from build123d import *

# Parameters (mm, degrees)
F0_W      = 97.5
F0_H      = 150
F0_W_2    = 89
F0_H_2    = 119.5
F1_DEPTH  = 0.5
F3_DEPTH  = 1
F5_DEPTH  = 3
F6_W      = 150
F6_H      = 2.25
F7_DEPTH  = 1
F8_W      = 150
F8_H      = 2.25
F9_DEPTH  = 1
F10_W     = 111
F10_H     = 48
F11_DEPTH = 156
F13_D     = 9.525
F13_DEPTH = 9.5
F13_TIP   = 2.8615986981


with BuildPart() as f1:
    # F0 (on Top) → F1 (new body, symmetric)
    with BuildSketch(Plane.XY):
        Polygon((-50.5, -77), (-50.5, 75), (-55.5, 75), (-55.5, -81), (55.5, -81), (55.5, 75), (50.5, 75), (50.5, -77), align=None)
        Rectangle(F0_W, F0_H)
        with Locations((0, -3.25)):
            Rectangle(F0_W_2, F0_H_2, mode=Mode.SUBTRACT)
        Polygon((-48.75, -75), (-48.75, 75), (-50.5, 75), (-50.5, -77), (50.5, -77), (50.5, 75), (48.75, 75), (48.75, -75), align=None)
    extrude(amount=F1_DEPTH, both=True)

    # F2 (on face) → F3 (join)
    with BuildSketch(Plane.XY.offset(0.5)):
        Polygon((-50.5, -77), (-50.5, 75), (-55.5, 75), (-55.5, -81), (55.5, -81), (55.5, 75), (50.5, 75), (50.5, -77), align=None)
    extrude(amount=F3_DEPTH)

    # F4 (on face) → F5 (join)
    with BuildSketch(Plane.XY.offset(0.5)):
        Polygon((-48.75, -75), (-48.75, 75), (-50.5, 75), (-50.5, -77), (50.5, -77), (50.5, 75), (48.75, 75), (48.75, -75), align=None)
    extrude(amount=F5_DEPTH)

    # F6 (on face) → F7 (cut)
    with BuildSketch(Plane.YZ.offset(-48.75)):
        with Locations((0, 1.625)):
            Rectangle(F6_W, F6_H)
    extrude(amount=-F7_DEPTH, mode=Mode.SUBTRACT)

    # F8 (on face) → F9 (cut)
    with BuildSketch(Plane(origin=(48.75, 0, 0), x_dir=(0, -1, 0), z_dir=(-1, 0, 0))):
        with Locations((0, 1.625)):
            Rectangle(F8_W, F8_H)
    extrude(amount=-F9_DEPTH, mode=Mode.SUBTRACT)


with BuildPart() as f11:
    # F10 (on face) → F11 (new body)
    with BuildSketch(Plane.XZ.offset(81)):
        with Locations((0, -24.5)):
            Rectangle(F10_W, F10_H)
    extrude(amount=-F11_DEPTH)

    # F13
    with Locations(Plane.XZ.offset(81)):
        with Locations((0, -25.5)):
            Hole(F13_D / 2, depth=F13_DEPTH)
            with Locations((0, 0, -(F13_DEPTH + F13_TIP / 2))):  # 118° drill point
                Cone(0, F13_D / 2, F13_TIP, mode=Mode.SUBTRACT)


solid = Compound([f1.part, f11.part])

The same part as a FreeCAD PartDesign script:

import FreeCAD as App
import Part
import Sketcher
from FreeCAD import Vector
Q = App.Units.Quantity


def add_polygon(sketch, points):
    """Adds a closed chain of lines whose ends are joined by coincident constraints."""
    first, n = sketch.GeometryCount, len(points)
    for a, b in zip(points, points[1:] + points[:1]):
        sketch.addGeometry(Part.LineSegment(App.Vector(*a, 0), App.Vector(*b, 0)), False)
    for i in range(n):
        sketch.addConstraint(Sketcher.Constraint("Coincident", first + i, 2, first + (i + 1) % n, 1))

doc = App.newDocument("Part")
body = doc.addObject("PartDesign::Body", "Body")

# Sketch on XY plane
sketch1 = body.newObject("Sketcher::SketchObject", "Sketch")
sketch1.AttachmentSupport = (doc.getObject("XY_Plane"), [""])
sketch1.MapMode = "FlatFace"
add_polygon(sketch1, [(-55.5, 75), (-55.5, -81), (55.5, -81), (55.5, 75)])  # lines 0-3
add_polygon(sketch1, [(-44.5, -63), (-44.5, 56.5), (44.5, 56.5), (44.5, -63)])  # lines 4-7
sketch1.addConstraint([
    Sketcher.Constraint("Vertical", 0),
    Sketcher.Constraint("Horizontal", 1),
    Sketcher.Constraint("Vertical", 2),
    Sketcher.Constraint("Horizontal", 3),
    Sketcher.Constraint("Vertical", 4),
    Sketcher.Constraint("Horizontal", 5),
    Sketcher.Constraint("Vertical", 6),
    Sketcher.Constraint("Horizontal", 7),
    Sketcher.Constraint("DistanceX", 1, 1, 1, 2, Q("111 mm")),
    Sketcher.Constraint("DistanceX", 5, 1, 5, 2, Q("89 mm")),
    Sketcher.Constraint("DistanceY", 0, 2, 0, 1, Q("156 mm")),
    Sketcher.Constraint("DistanceY", 4, 1, 4, 2, Q("119.5 mm")),
    Sketcher.Constraint("DistanceY", 0, 2, -1, 1, Q("81 mm")),
    Sketcher.Constraint("DistanceY", 6, 2, -1, 1, Q("63 mm")),
    Sketcher.Constraint("DistanceX", 3, 2, 4, 2, Q("11 mm")),
    Sketcher.Constraint("DistanceX", 0, 2, -1, 1, Q("55.5 mm")),
])
pad1 = body.newObject("PartDesign::Pad", "Pad")
pad1.Profile = sketch1
pad1.Length = 1
pad1.Midplane = True

# Sketch on XY plane
sketch2 = body.newObject("Sketcher::SketchObject", "Sketch001")
sketch2.AttachmentSupport = (doc.getObject("XY_Plane"), [""])
sketch2.MapMode = "FlatFace"
sketch2.AttachmentOffset = App.Placement(Vector(0, 0, 0.5), App.Rotation())
add_polygon(sketch2, [(-50.5, -77), (-50.5, 75), (-55.5, 75), (-55.5, -81), (55.5, -81), (55.5, 75), (50.5, 75), (50.5, -77)])  # lines 0-7
sketch2.addConstraint([
    Sketcher.Constraint("Vertical", 0),
    Sketcher.Constraint("Horizontal", 1),
    Sketcher.Constraint("Vertical", 2),
    Sketcher.Constraint("Horizontal", 3),
    Sketcher.Constraint("Vertical", 4),
    Sketcher.Constraint("Horizontal", 5),
    Sketcher.Constraint("Vertical", 6),
    Sketcher.Constraint("Horizontal", 7),
    Sketcher.Constraint("Symmetric", 1, 2, 4, 2, -2),
    Sketcher.Constraint("Equal", 1, 5),
    Sketcher.Constraint("DistanceX", 1, 2, 1, 1, Q("5 mm")),
    Sketcher.Constraint("DistanceX", 3, 1, 3, 2, Q("111 mm")),
    Sketcher.Constraint("DistanceY", 0, 1, 0, 2, Q("152 mm")),
    Sketcher.Constraint("DistanceY", 2, 2, 2, 1, Q("156 mm")),
    Sketcher.Constraint("DistanceY", -1, 1, 0, 2, Q("75 mm")),
])
pad2 = body.newObject("PartDesign::Pad", "Pad001")
pad2.Profile = sketch2
pad2.Length = 1

# Sketch on XY plane
sketch3 = body.newObject("Sketcher::SketchObject", "Sketch002")
sketch3.AttachmentSupport = (doc.getObject("XY_Plane"), [""])
sketch3.MapMode = "FlatFace"
sketch3.AttachmentOffset = App.Placement(Vector(0, 0, 0.5), App.Rotation())
add_polygon(sketch3, [(-48.75, -75), (-48.75, 75), (-50.5, 75), (-50.5, -77), (50.5, -77), (50.5, 75), (48.75, 75), (48.75, -75)])  # lines 0-7
sketch3.addConstraint([
    Sketcher.Constraint("Vertical", 0),
    Sketcher.Constraint("Horizontal", 1),
    Sketcher.Constraint("Vertical", 2),
    Sketcher.Constraint("Horizontal", 3),
    Sketcher.Constraint("Vertical", 4),
    Sketcher.Constraint("Horizontal", 5),
    Sketcher.Constraint("Vertical", 6),
    Sketcher.Constraint("Horizontal", 7),
    Sketcher.Constraint("Symmetric", 0, 2, 6, 2, -1, 1),
    Sketcher.Constraint("Symmetric", 1, 2, 4, 2, -2),
    Sketcher.Constraint("DistanceX", 3, 1, 3, 2, Q("101 mm")),
    Sketcher.Constraint("DistanceY", 0, 1, 0, 2, Q("150 mm")),
    Sketcher.Constraint("DistanceY", 2, 2, 2, 1, Q("152 mm")),
    Sketcher.Constraint("DistanceX", 7, 2, 7, 1, Q("97.5 mm")),
])
pad3 = body.newObject("PartDesign::Pad", "Pad002")
pad3.Profile = sketch3
pad3.Length = 3

# Sketch on YZ plane
sketch4 = body.newObject("Sketcher::SketchObject", "Sketch003")
sketch4.AttachmentSupport = (doc.getObject("YZ_Plane"), [""])
sketch4.MapMode = "FlatFace"
sketch4.AttachmentOffset = App.Placement(Vector(0, 0, -48.75), App.Rotation())
add_polygon(sketch4, [(-75, 2.75), (-75, 0.5), (75, 0.5), (75, 2.75)])  # lines 0-3
sketch4.addConstraint([
    Sketcher.Constraint("Vertical", 0),
    Sketcher.Constraint("Horizontal", 1),
    Sketcher.Constraint("Vertical", 2),
    Sketcher.Constraint("Horizontal", 3),
    Sketcher.Constraint("DistanceX", 1, 1, 1, 2, Q("150 mm")),
    Sketcher.Constraint("DistanceX", 0, 2, -1, 1, Q("75 mm")),
    Sketcher.Constraint("DistanceY", 0, 2, 0, 1, Q("2.25 mm")),
    Sketcher.Constraint("DistanceY", -1, 1, 0, 2, Q("0.5 mm")),
])
pocket1 = body.newObject("PartDesign::Pocket", "Pocket")
pocket1.Profile = sketch4
pocket1.Length = 1

# Sketch on YZ plane
sketch5 = body.newObject("Sketcher::SketchObject", "Sketch004")
sketch5.AttachmentSupport = (doc.getObject("YZ_Plane"), [""])
sketch5.MapMode = "FlatFace"
sketch5.AttachmentOffset = App.Placement(Vector(0, 0, 48.75), App.Rotation())
add_polygon(sketch5, [(75, 2.75), (75, 0.5), (-75, 0.5), (-75, 2.75)])  # lines 0-3
sketch5.addConstraint([
    Sketcher.Constraint("Vertical", 0),
    Sketcher.Constraint("Horizontal", 1),
    Sketcher.Constraint("Vertical", 2),
    Sketcher.Constraint("Horizontal", 3),
    Sketcher.Constraint("DistanceX", 1, 2, 1, 1, Q("150 mm")),
    Sketcher.Constraint("DistanceX", -1, 1, 0, 2, Q("75 mm")),
    Sketcher.Constraint("DistanceY", 0, 2, 0, 1, Q("2.25 mm")),
    Sketcher.Constraint("DistanceY", -1, 1, 0, 2, Q("0.5 mm")),
])
pocket2 = body.newObject("PartDesign::Pocket", "Pocket001")
pocket2.Profile = sketch5
pocket2.Length = 1
pocket2.Reversed = True
body2 = doc.addObject("PartDesign::Body", "Body001")

# Sketch on XZ plane
sketch6 = body2.newObject("Sketcher::SketchObject", "Sketch005")
sketch6.AttachmentSupport = (doc.getObject("XZ_Plane001"), [""])
sketch6.MapMode = "FlatFace"
sketch6.AttachmentOffset = App.Placement(Vector(0, 0, 81), App.Rotation())
add_polygon(sketch6, [(-55.5, -0.5), (-55.5, -48.5), (55.5, -48.5), (55.5, -0.5)])  # lines 0-3
sketch6.addConstraint([
    Sketcher.Constraint("Vertical", 0),
    Sketcher.Constraint("Horizontal", 1),
    Sketcher.Constraint("Vertical", 2),
    Sketcher.Constraint("Horizontal", 3),
    Sketcher.Constraint("DistanceX", 1, 1, 1, 2, Q("111 mm")),
    Sketcher.Constraint("DistanceY", 0, 2, 0, 1, Q("48 mm")),
    Sketcher.Constraint("DistanceX", 0, 2, -1, 1, Q("55.5 mm")),
    Sketcher.Constraint("DistanceY", 0, 2, -1, 1, Q("48.5 mm")),
])
pad4 = body2.newObject("PartDesign::Pad", "Pad003")
pad4.Profile = sketch6
pad4.Length = 156
pad4.Reversed = True

# Sketch on XZ plane
sketch7 = body2.newObject("Sketcher::SketchObject", "Sketch006")
sketch7.AttachmentSupport = (doc.getObject("XZ_Plane001"), [""])
sketch7.MapMode = "FlatFace"
sketch7.AttachmentOffset = App.Placement(Vector(0, 0, 81), App.Rotation())
sketch7.addGeometry(Part.Circle(Vector(0, -25.5, 0), Vector(0, 0, 1), 4.7625), False)
sketch7.addConstraint([
    Sketcher.Constraint("PointOnObject", 0, 3, -2),
    Sketcher.Constraint("Diameter", 0, Q("9.525 mm")),
    Sketcher.Constraint("DistanceY", 0, 3, -1, 1, Q("25.5 mm")),
])
doc.recompute()
hole = body2.newObject("PartDesign::Hole", "Hole")
hole.Profile = sketch7
hole.ThreadType = "None"
hole.Diameter = 9.525
hole.DepthType = "Dimension"
hole.Depth = 9.5
hole.DrillPoint = "Angled"
hole.DrillPointAngle = 118

doc.recompute()
